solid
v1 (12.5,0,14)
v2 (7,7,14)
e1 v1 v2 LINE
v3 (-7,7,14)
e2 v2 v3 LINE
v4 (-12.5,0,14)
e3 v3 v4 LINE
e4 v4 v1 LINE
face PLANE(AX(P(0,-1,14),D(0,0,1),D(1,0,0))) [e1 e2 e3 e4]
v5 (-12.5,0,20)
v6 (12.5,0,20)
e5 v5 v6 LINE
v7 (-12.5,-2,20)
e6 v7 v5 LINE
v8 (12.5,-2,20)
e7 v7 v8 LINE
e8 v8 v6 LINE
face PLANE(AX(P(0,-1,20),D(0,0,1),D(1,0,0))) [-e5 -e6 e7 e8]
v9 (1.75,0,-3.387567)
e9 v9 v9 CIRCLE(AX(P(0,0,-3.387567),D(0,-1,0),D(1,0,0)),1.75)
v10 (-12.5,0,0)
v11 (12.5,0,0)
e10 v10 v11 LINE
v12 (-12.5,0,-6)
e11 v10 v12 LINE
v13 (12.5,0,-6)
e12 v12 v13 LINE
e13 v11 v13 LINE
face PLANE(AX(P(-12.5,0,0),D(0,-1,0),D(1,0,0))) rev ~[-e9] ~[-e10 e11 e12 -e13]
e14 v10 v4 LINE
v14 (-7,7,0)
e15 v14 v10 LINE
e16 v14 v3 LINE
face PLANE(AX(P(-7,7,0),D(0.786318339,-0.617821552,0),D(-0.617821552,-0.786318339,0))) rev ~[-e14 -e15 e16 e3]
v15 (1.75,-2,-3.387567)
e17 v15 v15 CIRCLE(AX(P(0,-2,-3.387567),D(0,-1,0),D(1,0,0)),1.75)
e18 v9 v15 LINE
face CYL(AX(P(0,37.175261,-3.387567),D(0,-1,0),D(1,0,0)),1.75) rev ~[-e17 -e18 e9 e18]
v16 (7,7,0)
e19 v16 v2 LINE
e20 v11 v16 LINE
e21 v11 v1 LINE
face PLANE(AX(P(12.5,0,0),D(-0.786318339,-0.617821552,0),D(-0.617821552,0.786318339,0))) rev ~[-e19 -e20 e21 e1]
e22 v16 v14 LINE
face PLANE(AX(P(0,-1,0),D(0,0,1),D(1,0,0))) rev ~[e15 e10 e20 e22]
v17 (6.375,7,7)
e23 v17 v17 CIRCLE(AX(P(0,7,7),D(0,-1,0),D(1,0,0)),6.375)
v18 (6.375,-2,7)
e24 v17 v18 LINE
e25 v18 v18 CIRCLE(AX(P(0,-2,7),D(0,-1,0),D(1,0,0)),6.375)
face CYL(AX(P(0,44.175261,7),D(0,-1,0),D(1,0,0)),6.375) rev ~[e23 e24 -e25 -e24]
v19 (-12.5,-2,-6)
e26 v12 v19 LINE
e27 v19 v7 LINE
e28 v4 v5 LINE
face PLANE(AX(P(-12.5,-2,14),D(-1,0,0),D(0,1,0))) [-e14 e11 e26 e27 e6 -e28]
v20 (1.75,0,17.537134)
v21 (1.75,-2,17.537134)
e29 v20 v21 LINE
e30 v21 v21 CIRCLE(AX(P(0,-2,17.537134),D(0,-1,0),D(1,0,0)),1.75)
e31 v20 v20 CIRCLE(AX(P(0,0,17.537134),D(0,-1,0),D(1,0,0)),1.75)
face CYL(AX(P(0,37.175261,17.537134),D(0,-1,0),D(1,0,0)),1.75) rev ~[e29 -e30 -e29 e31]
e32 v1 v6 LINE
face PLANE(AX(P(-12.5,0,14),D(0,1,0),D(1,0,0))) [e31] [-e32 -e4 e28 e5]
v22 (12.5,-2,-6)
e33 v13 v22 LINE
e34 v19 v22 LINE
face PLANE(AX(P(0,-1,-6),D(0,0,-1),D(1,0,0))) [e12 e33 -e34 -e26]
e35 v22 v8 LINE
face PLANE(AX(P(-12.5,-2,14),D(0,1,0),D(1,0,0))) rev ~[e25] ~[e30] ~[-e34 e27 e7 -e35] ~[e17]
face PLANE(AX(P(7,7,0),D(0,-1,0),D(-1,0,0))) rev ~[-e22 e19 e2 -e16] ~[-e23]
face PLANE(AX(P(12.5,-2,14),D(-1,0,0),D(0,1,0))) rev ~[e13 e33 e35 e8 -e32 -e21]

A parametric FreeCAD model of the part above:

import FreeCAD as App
import Part
import Sketcher
from FreeCAD import Vector
Q = App.Units.Quantity

doc = App.newDocument("Part")
body = doc.addObject("PartDesign::Body", "Body")

sketch1 = body.newObject("Sketcher::SketchObject", "Sketch")
sketch1.AttachmentSupport = (doc.getObject("XY_Plane"), [""])
sketch1.MapMode = "FlatFace"
sketch1.addGeometry([
    Part.LineSegment(Vector(12.5, -2, 0), Vector(12.5, 0, 0)),
    Part.LineSegment(Vector(12.5, 0, 0), Vector(7, 7, 0)),
    Part.LineSegment(Vector(7, 7, 0), Vector(-7, 7, 0)),
    Part.LineSegment(Vector(-7, 7, 0), Vector(-12.5, 0, 0)),
    Part.LineSegment(Vector(-12.5, 0, 0), Vector(-12.5, -2, 0)),
    Part.LineSegment(Vector(-12.5, -2, 0), Vector(12.5, -2, 0)),
], False)
sketch1.addConstraint([
    Sketcher.Constraint("Coincident", 0, 2, 1, 1),
    Sketcher.Constraint("Coincident", 1, 2, 2, 1),
    Sketcher.Constraint("Coincident", 2, 2, 3, 1),
    Sketcher.Constraint("Coincident", 3, 2, 4, 1),
    Sketcher.Constraint("Coincident", 4, 2, 5, 1),
    Sketcher.Constraint("Coincident", 5, 2, 0, 1),
    Sketcher.Constraint("Vertical", 0),
    Sketcher.Constraint("Horizontal", 2),
    Sketcher.Constraint("Vertical", 4),
    Sketcher.Constraint("Horizontal", 5),
    Sketcher.Constraint("Symmetric", 0, 2, 3, 2, -1, 1),
    Sketcher.Constraint("PointOnObject", 0, 2, -1),
    Sketcher.Constraint("Equal", 1, 3),
    Sketcher.Constraint("DistanceX", 2, 2, 2, 1, Q("14 mm")),
    Sketcher.Constraint("DistanceX", 5, 1, 5, 2, Q("25 mm")),
    Sketcher.Constraint("DistanceY", 0, 1, 0, 2, Q("2 mm")),
    Sketcher.Constraint("DistanceY", -1, 1, 1, 2, Q("7 mm")),
])
pad1 = body.newObject("PartDesign::Pad", "Pad")
pad1.Profile = sketch1
pad1.Length = 14

sketch2 = body.newObject("Sketcher::SketchObject", "Sketch001")
sketch2.AttachmentSupport = (doc.getObject("XY_Plane"), [""])
sketch2.MapMode = "FlatFace"
sketch2.addGeometry([
    Part.LineSegment(Vector(-12.5, -2, 0), Vector(-12.5, 0, 0)),
    Part.LineSegment(Vector(-12.5, 0, 0), Vector(12.5, 0, 0)),
    Part.LineSegment(Vector(12.5, 0, 0), Vector(12.5, -2, 0)),
    Part.LineSegment(Vector(12.5, -2, 0), Vector(-12.5, -2, 0)),
], False)
sketch2.addConstraint([
    Sketcher.Constraint("Coincident", 0, 2, 1, 1),
    Sketcher.Constraint("Coincident", 1, 2, 2, 1),
    Sketcher.Constraint("Coincident", 2, 2, 3, 1),
    Sketcher.Constraint("Coincident", 3, 2, 0, 1),
    Sketcher.Constraint("Vertical", 0),
    Sketcher.Constraint("Horizontal", 1),
    Sketcher.Constraint("Vertical", 2),
    Sketcher.Constraint("Horizontal", 3),
    Sketcher.Constraint("Symmetric", 0, 2, 1, 2, -1, 1),
    Sketcher.Constraint("DistanceX", 1, 1, 1, 2, Q("25 mm")),
    Sketcher.Constraint("DistanceY", 0, 1, 0, 2, Q("2 mm")),
])
pad2 = body.newObject("PartDesign::Pad", "Pad001")
pad2.Profile = sketch2
pad2.Length = 6
pad2.Reversed = True

sketch3 = body.newObject("Sketcher::SketchObject", "Sketch002")
sketch3.AttachmentSupport = (doc.getObject("XY_Plane"), [""])
sketch3.MapMode = "FlatFace"
sketch3.AttachmentOffset = App.Placement(Vector(0, 0, 14), App.Rotation())
sketch3.addGeometry([
    Part.LineSegment(Vector(-12.5, 0, 0), Vector(-12.5, -2, 0)),
    Part.LineSegment(Vector(-12.5, -2, 0), Vector(12.5, -2, 0)),
    Part.LineSegment(Vector(12.5, -2, 0), Vector(12.5, 0, 0)),
    Part.LineSegment(Vector(12.5, 0, 0), Vector(-12.5, 0, 0)),
], False)
sketch3.addConstraint([
    Sketcher.Constraint("Coincident", 0, 2, 1, 1),
    Sketcher.Constraint("Coincident", 1, 2, 2, 1),
    Sketcher.Constraint("Coincident", 2, 2, 3, 1),
    Sketcher.Constraint("Coincident", 3, 2, 0, 1),
    Sketcher.Constraint("Vertical", 0),
    Sketcher.Constraint("Horizontal", 1),
    Sketcher.Constraint("Vertical", 2),
    Sketcher.Constraint("Horizontal", 3),
    Sketcher.Constraint("Symmetric", 2, 2, 3, 2, -1, 1),
    Sketcher.Constraint("DistanceX", 1, 1, 1, 2, Q("25 mm")),
    Sketcher.Constraint("DistanceY", 0, 2, 0, 1, Q("2 mm")),
])
pad3 = body.newObject("PartDesign::Pad", "Pad002")
pad3.Profile = sketch3
pad3.Length = 6

sketch4 = body.newObject("Sketcher::SketchObject", "Sketch003")
sketch4.AttachmentSupport = (doc.getObject("XZ_Plane"), [""])
sketch4.MapMode = "FlatFace"
sketch4.addGeometry(Part.Circle(Vector(0, -3.4, 0), Vector(0, 0, 1), 1.8), False)
sketch4.addConstraint([
    Sketcher.Constraint("PointOnObject", 0, 3, -2),
    Sketcher.Constraint("Diameter", 0, Q("3.5 mm")),
    Sketcher.Constraint("DistanceY", 0, 3, -1, 1, Q("3.387567 mm")),
])
doc.recompute()
hole = body.newObject("PartDesign::Hole", "Hole")
hole.Profile = sketch4
hole.ThreadType = "None"
hole.Diameter = 3.5
hole.DepthType = "ThroughAll"
hole.Reversed = True

sketch5 = body.newObject("Sketcher::SketchObject", "Sketch004")
sketch5.AttachmentSupport = (doc.getObject("XZ_Plane"), [""])
sketch5.MapMode = "FlatFace"
sketch5.addGeometry(Part.Circle(Vector(0, 17.5, 0), Vector(0, 0, 1), 1.8), False)
sketch5.addConstraint([
    Sketcher.Constraint("PointOnObject", 0, 3, -2),
    Sketcher.Constraint("Diameter", 0, Q("3.5 mm")),
    Sketcher.Constraint("DistanceY", -1, 1, 0, 3, Q("17.537134 mm")),
])
doc.recompute()
hole2 = body.newObject("PartDesign::Hole", "Hole001")
hole2.Profile = sketch5
hole2.ThreadType = "None"
hole2.Diameter = 3.5
hole2.DepthType = "ThroughAll"
hole2.Reversed = True

sketch6 = body.newObject("Sketcher::SketchObject", "Sketch005")
sketch6.AttachmentSupport = (doc.getObject("XZ_Plane"), [""])
sketch6.MapMode = "FlatFace"
sketch6.AttachmentOffset = App.Placement(Vector(0, 0, -7), App.Rotation())
sketch6.addGeometry(Part.Circle(Vector(0, 7, 0), Vector(0, 0, 1), 6), False)
sketch6.addConstraint([
    Sketcher.Constraint("PointOnObject", 0, 3, -2),
    Sketcher.Constraint("Diameter", 0, Q("12.75 mm")),
    Sketcher.Constraint("DistanceY", -1, 1, 0, 3, Q("7 mm")),
])
doc.recompute()
hole3 = body.newObject("PartDesign::Hole", "Hole002")
hole3.Profile = sketch6
hole3.ThreadType = "None"
hole3.Diameter = 12.75
hole3.DepthType = "ThroughAll"
hole3.Reversed = True

doc.recompute()
